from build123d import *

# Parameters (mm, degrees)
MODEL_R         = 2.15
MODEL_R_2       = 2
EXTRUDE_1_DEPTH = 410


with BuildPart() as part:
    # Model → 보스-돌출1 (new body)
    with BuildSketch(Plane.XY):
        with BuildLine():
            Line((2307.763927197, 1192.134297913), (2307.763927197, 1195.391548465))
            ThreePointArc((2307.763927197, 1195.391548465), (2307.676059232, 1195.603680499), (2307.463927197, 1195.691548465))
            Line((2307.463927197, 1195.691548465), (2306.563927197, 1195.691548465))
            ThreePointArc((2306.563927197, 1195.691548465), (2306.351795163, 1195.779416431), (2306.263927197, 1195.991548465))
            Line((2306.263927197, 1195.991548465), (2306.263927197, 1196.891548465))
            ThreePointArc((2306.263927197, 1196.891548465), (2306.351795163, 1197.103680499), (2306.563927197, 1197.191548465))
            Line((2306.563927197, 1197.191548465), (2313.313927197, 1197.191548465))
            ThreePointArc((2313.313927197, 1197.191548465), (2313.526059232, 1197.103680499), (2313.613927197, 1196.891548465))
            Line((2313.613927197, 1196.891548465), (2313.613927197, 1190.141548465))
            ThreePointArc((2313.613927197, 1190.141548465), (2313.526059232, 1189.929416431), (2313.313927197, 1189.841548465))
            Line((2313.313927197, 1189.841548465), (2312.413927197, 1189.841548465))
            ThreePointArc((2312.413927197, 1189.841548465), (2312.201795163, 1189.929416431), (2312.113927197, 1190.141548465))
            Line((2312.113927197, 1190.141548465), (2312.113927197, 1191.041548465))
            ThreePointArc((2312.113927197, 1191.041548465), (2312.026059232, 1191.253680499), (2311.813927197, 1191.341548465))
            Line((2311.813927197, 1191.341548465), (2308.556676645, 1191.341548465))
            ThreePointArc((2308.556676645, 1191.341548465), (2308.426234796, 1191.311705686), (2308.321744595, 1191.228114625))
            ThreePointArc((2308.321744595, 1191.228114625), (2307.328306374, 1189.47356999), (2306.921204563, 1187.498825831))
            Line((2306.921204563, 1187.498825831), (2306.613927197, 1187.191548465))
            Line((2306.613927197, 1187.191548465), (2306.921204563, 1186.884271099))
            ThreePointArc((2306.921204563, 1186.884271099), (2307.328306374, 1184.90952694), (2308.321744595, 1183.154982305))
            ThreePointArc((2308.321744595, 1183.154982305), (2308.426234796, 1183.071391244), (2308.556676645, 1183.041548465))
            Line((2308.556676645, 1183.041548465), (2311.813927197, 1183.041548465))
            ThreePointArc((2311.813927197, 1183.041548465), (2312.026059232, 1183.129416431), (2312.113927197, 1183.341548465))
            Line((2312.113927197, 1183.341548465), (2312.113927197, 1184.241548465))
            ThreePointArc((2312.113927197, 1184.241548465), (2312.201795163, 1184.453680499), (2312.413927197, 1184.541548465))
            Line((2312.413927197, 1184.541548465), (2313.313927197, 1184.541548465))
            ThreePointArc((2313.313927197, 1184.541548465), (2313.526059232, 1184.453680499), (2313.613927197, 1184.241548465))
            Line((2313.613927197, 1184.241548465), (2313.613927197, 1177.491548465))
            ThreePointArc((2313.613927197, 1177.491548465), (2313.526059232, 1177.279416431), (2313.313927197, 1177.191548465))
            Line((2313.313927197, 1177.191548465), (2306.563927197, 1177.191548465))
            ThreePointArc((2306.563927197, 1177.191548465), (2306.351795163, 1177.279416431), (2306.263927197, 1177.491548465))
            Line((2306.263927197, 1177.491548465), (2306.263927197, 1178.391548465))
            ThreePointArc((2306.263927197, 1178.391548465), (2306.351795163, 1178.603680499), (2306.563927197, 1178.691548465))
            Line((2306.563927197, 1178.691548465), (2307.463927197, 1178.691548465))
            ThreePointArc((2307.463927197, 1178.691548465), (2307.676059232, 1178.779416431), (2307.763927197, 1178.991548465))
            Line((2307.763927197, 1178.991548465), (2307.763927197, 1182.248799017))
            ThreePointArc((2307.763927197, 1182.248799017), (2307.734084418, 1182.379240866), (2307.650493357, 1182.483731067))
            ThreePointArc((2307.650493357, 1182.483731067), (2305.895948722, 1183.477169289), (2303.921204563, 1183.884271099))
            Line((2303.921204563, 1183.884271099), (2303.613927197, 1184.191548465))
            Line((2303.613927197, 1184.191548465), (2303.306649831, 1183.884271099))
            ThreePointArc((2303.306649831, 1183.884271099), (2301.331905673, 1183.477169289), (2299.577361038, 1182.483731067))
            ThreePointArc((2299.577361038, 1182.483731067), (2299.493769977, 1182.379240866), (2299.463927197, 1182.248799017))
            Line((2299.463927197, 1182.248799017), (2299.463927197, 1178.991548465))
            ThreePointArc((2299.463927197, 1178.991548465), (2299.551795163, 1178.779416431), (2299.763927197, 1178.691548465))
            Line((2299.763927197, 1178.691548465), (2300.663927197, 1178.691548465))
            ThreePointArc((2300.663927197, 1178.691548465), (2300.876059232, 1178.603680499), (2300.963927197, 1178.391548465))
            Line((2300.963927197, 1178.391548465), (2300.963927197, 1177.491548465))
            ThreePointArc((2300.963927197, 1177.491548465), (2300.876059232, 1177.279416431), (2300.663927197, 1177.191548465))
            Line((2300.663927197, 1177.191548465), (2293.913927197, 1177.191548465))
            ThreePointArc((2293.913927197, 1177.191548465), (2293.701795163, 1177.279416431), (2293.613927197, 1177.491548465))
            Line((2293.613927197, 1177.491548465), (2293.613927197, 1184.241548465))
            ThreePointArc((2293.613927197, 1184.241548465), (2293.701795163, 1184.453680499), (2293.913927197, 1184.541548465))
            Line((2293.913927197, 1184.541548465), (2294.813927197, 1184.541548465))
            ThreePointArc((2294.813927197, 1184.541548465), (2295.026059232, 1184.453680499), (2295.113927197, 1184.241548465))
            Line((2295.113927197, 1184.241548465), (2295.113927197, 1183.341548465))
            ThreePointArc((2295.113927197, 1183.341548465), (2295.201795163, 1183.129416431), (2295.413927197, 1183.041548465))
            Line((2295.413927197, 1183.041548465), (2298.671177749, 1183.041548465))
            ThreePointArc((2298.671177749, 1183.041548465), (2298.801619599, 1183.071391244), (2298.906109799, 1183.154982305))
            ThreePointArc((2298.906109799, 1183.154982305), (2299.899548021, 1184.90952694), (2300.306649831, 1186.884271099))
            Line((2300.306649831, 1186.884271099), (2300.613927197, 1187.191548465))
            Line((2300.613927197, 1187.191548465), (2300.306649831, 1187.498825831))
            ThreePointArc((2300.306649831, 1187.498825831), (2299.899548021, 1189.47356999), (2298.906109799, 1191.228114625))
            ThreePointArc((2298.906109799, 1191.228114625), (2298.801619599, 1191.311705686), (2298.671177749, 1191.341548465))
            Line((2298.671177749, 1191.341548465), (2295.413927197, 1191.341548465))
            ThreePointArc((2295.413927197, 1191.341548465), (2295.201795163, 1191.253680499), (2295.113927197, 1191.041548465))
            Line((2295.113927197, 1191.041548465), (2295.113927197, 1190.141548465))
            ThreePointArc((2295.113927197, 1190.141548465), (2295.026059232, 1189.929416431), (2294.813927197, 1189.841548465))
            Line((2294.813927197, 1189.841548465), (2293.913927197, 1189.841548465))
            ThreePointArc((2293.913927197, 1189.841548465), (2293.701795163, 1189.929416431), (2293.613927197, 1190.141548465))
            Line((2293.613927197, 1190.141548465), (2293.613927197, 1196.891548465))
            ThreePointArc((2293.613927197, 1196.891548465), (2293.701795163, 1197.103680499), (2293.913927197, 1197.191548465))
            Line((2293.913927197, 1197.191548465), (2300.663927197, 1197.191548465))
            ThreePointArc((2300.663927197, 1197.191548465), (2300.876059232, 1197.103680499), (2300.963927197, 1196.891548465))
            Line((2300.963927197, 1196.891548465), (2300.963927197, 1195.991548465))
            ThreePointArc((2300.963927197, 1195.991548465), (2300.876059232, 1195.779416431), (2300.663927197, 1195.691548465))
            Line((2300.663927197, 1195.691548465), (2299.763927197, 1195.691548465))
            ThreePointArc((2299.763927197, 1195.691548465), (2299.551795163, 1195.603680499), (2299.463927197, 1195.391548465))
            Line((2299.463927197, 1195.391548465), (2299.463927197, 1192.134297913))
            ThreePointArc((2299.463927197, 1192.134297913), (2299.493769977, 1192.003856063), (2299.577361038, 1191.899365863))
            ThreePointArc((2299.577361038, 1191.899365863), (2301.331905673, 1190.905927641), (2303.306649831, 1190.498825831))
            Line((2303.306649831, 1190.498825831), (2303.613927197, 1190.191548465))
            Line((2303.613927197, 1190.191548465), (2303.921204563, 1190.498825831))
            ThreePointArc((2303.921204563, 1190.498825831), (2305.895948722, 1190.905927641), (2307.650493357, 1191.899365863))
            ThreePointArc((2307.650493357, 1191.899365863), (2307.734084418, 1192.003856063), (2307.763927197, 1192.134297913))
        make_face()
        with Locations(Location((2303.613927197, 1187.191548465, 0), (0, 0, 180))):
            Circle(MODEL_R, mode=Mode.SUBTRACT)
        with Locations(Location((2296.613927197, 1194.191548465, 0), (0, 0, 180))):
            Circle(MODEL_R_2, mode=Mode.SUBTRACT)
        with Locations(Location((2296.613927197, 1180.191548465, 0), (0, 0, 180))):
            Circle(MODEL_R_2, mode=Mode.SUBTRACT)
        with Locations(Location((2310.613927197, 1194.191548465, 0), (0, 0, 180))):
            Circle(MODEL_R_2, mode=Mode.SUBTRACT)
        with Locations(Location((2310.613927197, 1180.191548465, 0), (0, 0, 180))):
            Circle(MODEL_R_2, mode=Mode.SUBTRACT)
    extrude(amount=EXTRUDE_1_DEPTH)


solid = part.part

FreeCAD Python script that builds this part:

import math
import FreeCAD as App
import Part
import Sketcher

doc = App.newDocument("Part")
body = doc.addObject("PartDesign::Body", "Body")

sketch1 = body.newObject("Sketcher::SketchObject", "Sketch")
sketch1.AttachmentSupport = (doc.getObject("XY_Plane"), [""])
sketch1.MapMode = "FlatFace"
sketch1.addGeometry(Part.LineSegment(App.Vector(2307.763927, 1195.391548, 0), App.Vector(2307.763927, 1192.134298, 0)), False)
sketch1.addGeometry(Part.ArcOfCircle(Part.Circle(App.Vector(2307.463927, 1192.134298, 0), App.Vector(0, 0, 1), 0.3), math.radians(-51.545921), math.radians(0)), False)
sketch1.addGeometry(Part.ArcOfCircle(Part.Circle(App.Vector(2303.613927, 1196.982382, 0), App.Vector(0, 0, 1), 6.490833), math.radians(-87.286592), math.radians(-51.545921)), False)
sketch1.addGeometry(Part.LineSegment(App.Vector(2303.921205, 1190.498826, 0), App.Vector(2303.613927, 1190.191548, 0)), False)
sketch1.addGeometry(Part.LineSegment(App.Vector(2303.613927, 1190.191548, 0), App.Vector(2303.30665, 1190.498826, 0)), False)
sketch1.addGeometry(Part.ArcOfCircle(Part.Circle(App.Vector(2303.613927, 1196.982382, 0), App.Vector(0, 0, 1), 6.490833), math.radians(-128.454079), math.radians(-92.713408)), False)
sketch1.addGeometry(Part.ArcOfCircle(Part.Circle(App.Vector(2299.763927, 1192.134298, 0), App.Vector(0, 0, 1), 0.3), math.radians(-180), math.radians(-128.454079)), False)
sketch1.addGeometry(Part.LineSegment(App.Vector(2299.463927, 1192.134298, 0), App.Vector(2299.463927, 1195.391548, 0)), False)
sketch1.addGeometry(Part.ArcOfCircle(Part.Circle(App.Vector(2299.763927, 1195.391548, 0), App.Vector(0, 0, 1), 0.3), math.radians(90), math.radians(180)), False)
sketch1.addGeometry(Part.LineSegment(App.Vector(2299.763927, 1195.691548, 0), App.Vector(2300.663927, 1195.691548, 0)), False)
sketch1.addGeometry(Part.ArcOfCircle(Part.Circle(App.Vector(2300.663927, 1195.991548, 0), App.Vector(0, 0, 1), 0.3), math.radians(-90), math.radians(0)), False)
sketch1.addGeometry(Part.LineSegment(App.Vector(2300.963927, 1195.991548, 0), App.Vector(2300.963927, 1196.891548, 0)), False)
sketch1.addGeometry(Part.ArcOfCircle(Part.Circle(App.Vector(2300.663927, 1196.891548, 0), App.Vector(0, 0, 1), 0.3), math.radians(0), math.radians(90)), False)
sketch1.addGeometry(Part.LineSegment(App.Vector(2300.663927, 1197.191548, 0), App.Vector(2293.913927, 1197.191548, 0)), False)
sketch1.addGeometry(Part.ArcOfCircle(Part.Circle(App.Vector(2293.913927, 1196.891548, 0), App.Vector(0, 0, 1), 0.3), math.radians(90), math.radians(180)), False)
sketch1.addGeometry(Part.LineSegment(App.Vector(2293.613927, 1196.891548, 0), App.Vector(2293.613927, 1190.141548, 0)), False)
sketch1.addGeometry(Part.ArcOfCircle(Part.Circle(App.Vector(2293.913927, 1190.141548, 0), App.Vector(0, 0, 1), 0.3), math.radians(-180), math.radians(-90)), False)
sketch1.addGeometry(Part.LineSegment(App.Vector(2293.913927, 1189.841548, 0), App.Vector(2294.813927, 1189.841548, 0)), False)
sketch1.addGeometry(Part.ArcOfCircle(Part.Circle(App.Vector(2294.813927, 1190.141548, 0), App.Vector(0, 0, 1), 0.3), math.radians(-90), math.radians(0)), False)
sketch1.addGeometry(Part.LineSegment(App.Vector(2295.113927, 1190.141548, 0), App.Vector(2295.113927, 1191.041548, 0)), False)
sketch1.addGeometry(Part.ArcOfCircle(Part.Circle(App.Vector(2295.413927, 1191.041548, 0), App.Vector(0, 0, 1), 0.3), math.radians(90), math.radians(180)), False)
sketch1.addGeometry(Part.LineSegment(App.Vector(2295.413927, 1191.341548, 0), App.Vector(2298.671178, 1191.341548, 0)), False)
sketch1.addGeometry(Part.ArcOfCircle(Part.Circle(App.Vector(2298.671178, 1191.041548, 0), App.Vector(0, 0, 1), 0.3), math.radians(38.454079), math.radians(90)), False)
sketch1.addGeometry(Part.ArcOfCircle(Part.Circle(App.Vector(2293.823094, 1187.191548, 0), App.Vector(0, 0, 1), 6.490833), math.radians(2.713408), math.radians(38.454079)), False)
sketch1.addGeometry(Part.LineSegment(App.Vector(2300.30665, 1187.498826, 0), App.Vector(2300.613927, 1187.191548, 0)), False)
sketch1.addGeometry(Part.LineSegment(App.Vector(2300.613927, 1187.191548, 0), App.Vector(2300.30665, 1186.884271, 0)), False)
sketch1.addGeometry(Part.ArcOfCircle(Part.Circle(App.Vector(2293.823094, 1187.191548, 0), App.Vector(0, 0, 1), 6.490833), math.radians(-38.454079), math.radians(-2.713408)), False)
sketch1.addGeometry(Part.ArcOfCircle(Part.Circle(App.Vector(2298.671178, 1183.341548, 0), App.Vector(0, 0, 1), 0.3), math.radians(-90), math.radians(-38.454079)), False)
sketch1.addGeometry(Part.LineSegment(App.Vector(2298.671178, 1183.041548, 0), App.Vector(2295.413927, 1183.041548, 0)), False)
sketch1.addGeometry(Part.ArcOfCircle(Part.Circle(App.Vector(2295.413927, 1183.341548, 0), App.Vector(0, 0, 1), 0.3), math.radians(-180), math.radians(-90)), False)
sketch1.addGeometry(Part.LineSegment(App.Vector(2295.113927, 1183.341548, 0), App.Vector(2295.113927, 1184.241548, 0)), False)
sketch1.addGeometry(Part.ArcOfCircle(Part.Circle(App.Vector(2294.813927, 1184.241548, 0), App.Vector(0, 0, 1), 0.3), math.radians(0), math.radians(90)), False)
sketch1.addGeometry(Part.LineSegment(App.Vector(2294.813927, 1184.541548, 0), App.Vector(2293.913927, 1184.541548, 0)), False)
sketch1.addGeometry(Part.ArcOfCircle(Part.Circle(App.Vector(2293.913927, 1184.241548, 0), App.Vector(0, 0, 1), 0.3), math.radians(90), math.radians(180)), False)
sketch1.addGeometry(Part.LineSegment(App.Vector(2293.613927, 1184.241548, 0), App.Vector(2293.613927, 1177.491548, 0)), False)
sketch1.addGeometry(Part.ArcOfCircle(Part.Circle(App.Vector(2293.913927, 1177.491548, 0), App.Vector(0, 0, 1), 0.3), math.radians(-180), math.radians(-90)), False)
sketch1.addGeometry(Part.LineSegment(App.Vector(2293.913927, 1177.191548, 0), App.Vector(2300.663927, 1177.191548, 0)), False)
sketch1.addGeometry(Part.ArcOfCircle(Part.Circle(App.Vector(2300.663927, 1177.491548, 0), App.Vector(0, 0, 1), 0.3), math.radians(-90), math.radians(0)), False)
sketch1.addGeometry(Part.LineSegment(App.Vector(2300.963927, 1177.491548, 0), App.Vector(2300.963927, 1178.391548, 0)), False)
sketch1.addGeometry(Part.ArcOfCircle(Part.Circle(App.Vector(2300.663927, 1178.391548, 0), App.Vector(0, 0, 1), 0.3), math.radians(0), math.radians(90)), False)
sketch1.addGeometry(Part.LineSegment(App.Vector(2300.663927, 1178.691548, 0), App.Vector(2299.763927, 1178.691548, 0)), False)
sketch1.addGeometry(Part.ArcOfCircle(Part.Circle(App.Vector(2299.763927, 1178.991548, 0), App.Vector(0, 0, 1), 0.3), math.radians(-180), math.radians(-90)), False)
sketch1.addGeometry(Part.LineSegment(App.Vector(2299.463927, 1178.991548, 0), App.Vector(2299.463927, 1182.248799, 0)), False)
sketch1.addGeometry(Part.ArcOfCircle(Part.Circle(App.Vector(2299.763927, 1182.248799, 0), App.Vector(0, 0, 1), 0.3), math.radians(128.45408), math.radians(179.999999)), False)
sketch1.addGeometry(Part.ArcOfCircle(Part.Circle(App.Vector(2303.613927, 1177.400715, 0), App.Vector(0, 0, 1), 6.490833), math.radians(92.713408), math.radians(128.454079)), False)
sketch1.addGeometry(Part.LineSegment(App.Vector(2303.30665, 1183.884271, 0), App.Vector(2303.613927, 1184.191548, 0)), False)
sketch1.addGeometry(Part.LineSegment(App.Vector(2303.613927, 1184.191548, 0), App.Vector(2303.921205, 1183.884271, 0)), False)
sketch1.addGeometry(Part.ArcOfCircle(Part.Circle(App.Vector(2303.613927, 1177.400715, 0), App.Vector(0, 0, 1), 6.490833), math.radians(51.545921), math.radians(87.286592)), False)
sketch1.addGeometry(Part.ArcOfCircle(Part.Circle(App.Vector(2307.463927, 1182.248799, 0), App.Vector(0, 0, 1), 0.3), math.radians(0), math.radians(51.545921)), False)
sketch1.addGeometry(Part.LineSegment(App.Vector(2307.763927, 1182.248799, 0), App.Vector(2307.763927, 1178.991548, 0)), False)
sketch1.addGeometry(Part.ArcOfCircle(Part.Circle(App.Vector(2307.463927, 1178.991548, 0), App.Vector(0, 0, 1), 0.3), math.radians(-90), math.radians(0)), False)
sketch1.addGeometry(Part.LineSegment(App.Vector(2307.463927, 1178.691548, 0), App.Vector(2306.563927, 1178.691548, 0)), False)
sketch1.addGeometry(Part.ArcOfCircle(Part.Circle(App.Vector(2306.563927, 1178.391548, 0), App.Vector(0, 0, 1), 0.3), math.radians(90), math.radians(180)), False)
sketch1.addGeometry(Part.LineSegment(App.Vector(2306.263927, 1178.391548, 0), App.Vector(2306.263927, 1177.491548, 0)), False)
sketch1.addGeometry(Part.ArcOfCircle(Part.Circle(App.Vector(2306.563927, 1177.491548, 0), App.Vector(0, 0, 1), 0.3), math.radians(-180), math.radians(-90)), False)
sketch1.addGeometry(Part.LineSegment(App.Vector(2306.563927, 1177.191548, 0), App.Vector(2313.313927, 1177.191548, 0)), False)
sketch1.addGeometry(Part.ArcOfCircle(Part.Circle(App.Vector(2313.313927, 1177.491548, 0), App.Vector(0, 0, 1), 0.3), math.radians(-90), math.radians(0)), False)
sketch1.addGeometry(Part.LineSegment(App.Vector(2313.613927, 1177.491548, 0), App.Vector(2313.613927, 1184.241548, 0)), False)
sketch1.addGeometry(Part.ArcOfCircle(Part.Circle(App.Vector(2313.313927, 1184.241548, 0), App.Vector(0, 0, 1), 0.3), math.radians(0), math.radians(90)), False)
sketch1.addGeometry(Part.LineSegment(App.Vector(2313.313927, 1184.541548, 0), App.Vector(2312.413927, 1184.541548, 0)), False)
sketch1.addGeometry(Part.ArcOfCircle(Part.Circle(App.Vector(2312.413927, 1184.241548, 0), App.Vector(0, 0, 1), 0.3), math.radians(90), math.radians(180)), False)
sketch1.addGeometry(Part.LineSegment(App.Vector(2312.113927, 1184.241548, 0), App.Vector(2312.113927, 1183.341548, 0)), False)
sketch1.addGeometry(Part.ArcOfCircle(Part.Circle(App.Vector(2311.813927, 1183.341548, 0), App.Vector(0, 0, 1), 0.3), math.radians(-90), math.radians(0)), False)
sketch1.addGeometry(Part.LineSegment(App.Vector(2311.813927, 1183.041548, 0), App.Vector(2308.556677, 1183.041548, 0)), False)
sketch1.addGeometry(Part.ArcOfCircle(Part.Circle(App.Vector(2308.556677, 1183.341548, 0), App.Vector(0, 0, 1), 0.3), math.radians(-141.545921), math.radians(-90)), False)
sketch1.addGeometry(Part.ArcOfCircle(Part.Circle(App.Vector(2313.404761, 1187.191548, 0), App.Vector(0, 0, 1), 6.490833), math.radians(-177.286592), math.radians(-141.545921)), False)
sketch1.addGeometry(Part.LineSegment(App.Vector(2306.921205, 1186.884271, 0), App.Vector(2306.613927, 1187.191548, 0)), False)
sketch1.addGeometry(Part.LineSegment(App.Vector(2306.613927, 1187.191548, 0), App.Vector(2306.921205, 1187.498826, 0)), False)
sketch1.addGeometry(Part.ArcOfCircle(Part.Circle(App.Vector(2313.404761, 1187.191548, 0), App.Vector(0, 0, 1), 6.490833), math.radians(141.545921), math.radians(177.286592)), False)
sketch1.addGeometry(Part.ArcOfCircle(Part.Circle(App.Vector(2308.556677, 1191.041548, 0), App.Vector(0, 0, 1), 0.3), math.radians(90), math.radians(141.545921)), False)
sketch1.addGeometry(Part.LineSegment(App.Vector(2308.556677, 1191.341548, 0), App.Vector(2311.813927, 1191.341548, 0)), False)
sketch1.addGeometry(Part.ArcOfCircle(Part.Circle(App.Vector(2311.813927, 1191.041548, 0), App.Vector(0, 0, 1), 0.3), math.radians(0), math.radians(90)), False)
sketch1.addGeometry(Part.LineSegment(App.Vector(2312.113927, 1191.041548, 0), App.Vector(2312.113927, 1190.141548, 0)), False)
sketch1.addGeometry(Part.ArcOfCircle(Part.Circle(App.Vector(2312.413927, 1190.141548, 0), App.Vector(0, 0, 1), 0.3), math.radians(-180), math.radians(-90)), False)
sketch1.addGeometry(Part.LineSegment(App.Vector(2312.413927, 1189.841548, 0), App.Vector(2313.313927, 1189.841548, 0)), False)
sketch1.addGeometry(Part.ArcOfCircle(Part.Circle(App.Vector(2313.313927, 1190.141548, 0), App.Vector(0, 0, 1), 0.3), math.radians(-90), math.radians(0)), False)
sketch1.addGeometry(Part.LineSegment(App.Vector(2313.613927, 1190.141548, 0), App.Vector(2313.613927, 1196.891548, 0)), False)
sketch1.addGeometry(Part.ArcOfCircle(Part.Circle(App.Vector(2313.313927, 1196.891548, 0), App.Vector(0, 0, 1), 0.3), math.radians(0), math.radians(90)), False)
sketch1.addGeometry(Part.LineSegment(App.Vector(2313.313927, 1197.191548, 0), App.Vector(2306.563927, 1197.191548, 0)), False)
sketch1.addGeometry(Part.ArcOfCircle(Part.Circle(App.Vector(2306.563927, 1196.891548, 0), App.Vector(0, 0, 1), 0.3), math.radians(90), math.radians(180)), False)
sketch1.addGeometry(Part.LineSegment(App.Vector(2306.263927, 1196.891548, 0), App.Vector(2306.263927, 1195.991548, 0)), False)
sketch1.addGeometry(Part.ArcOfCircle(Part.Circle(App.Vector(2306.563927, 1195.991548, 0), App.Vector(0, 0, 1), 0.3), math.radians(-180), math.radians(-90)), False)
sketch1.addGeometry(Part.LineSegment(App.Vector(2306.563927, 1195.691548, 0), App.Vector(2307.463927, 1195.691548, 0)), False)
sketch1.addGeometry(Part.ArcOfCircle(Part.Circle(App.Vector(2307.463927, 1195.391548, 0), App.Vector(0, 0, 1), 0.3), math.radians(0), math.radians(90)), False)
sketch1.addGeometry(Part.Circle(App.Vector(2310.613927, 1180.191548, 0), App.Vector(0, 0, 1), 2), False)
sketch1.addGeometry(Part.Circle(App.Vector(2296.613927, 1180.191548, 0), App.Vector(0, 0, 1), 2), False)
sketch1.addGeometry(Part.Circle(App.Vector(2310.613927, 1194.191548, 0), App.Vector(0, 0, 1), 2), False)
sketch1.addGeometry(Part.Circle(App.Vector(2303.613927, 1187.191548, 0), App.Vector(0, 0, 1), 2.15), False)
sketch1.addGeometry(Part.Circle(App.Vector(2296.613927, 1194.191548, 0), App.Vector(0, 0, 1), 2), False)
sketch1.addConstraint(Sketcher.Constraint("Tangent", 0, 2, 1, 2))
sketch1.addConstraint(Sketcher.Constraint("Tangent", 1, 1, 2, 2))
sketch1.addConstraint(Sketcher.Constraint("Coincident", 2, 1, 3, 1))
sketch1.addConstraint(Sketcher.Constraint("Coincident", 3, 2, 4, 1))
sketch1.addConstraint(Sketcher.Constraint("Coincident", 4, 2, 5, 2))
sketch1.addConstraint(Sketcher.Constraint("Tangent", 5, 1, 6, 2))
sketch1.addConstraint(Sketcher.Constraint("Tangent", 6, 1, 7, 1))
sketch1.addConstraint(Sketcher.Constraint("Tangent", 7, 2, 8, 2))
sketch1.addConstraint(Sketcher.Constraint("Tangent", 8, 1, 9, 1))
sketch1.addConstraint(Sketcher.Constraint("Tangent", 9, 2, 10, 1))
sketch1.addConstraint(Sketcher.Constraint("Tangent", 10, 2, 11, 1))
sketch1.addConstraint(Sketcher.Constraint("Tangent", 11, 2, 12, 1))
sketch1.addConstraint(Sketcher.Constraint("Tangent", 12, 2, 13, 1))
sketch1.addConstraint(Sketcher.Constraint("Tangent", 13, 2, 14, 1))
sketch1.addConstraint(Sketcher.Constraint("Tangent", 14, 2, 15, 1))
sketch1.addConstraint(Sketcher.Constraint("Tangent", 15, 2, 16, 1))
sketch1.addConstraint(Sketcher.Constraint("Tangent", 16, 2, 17, 1))
sketch1.addConstraint(Sketcher.Constraint("Tangent", 17, 2, 18, 1))
sketch1.addConstraint(Sketcher.Constraint("Tangent", 18, 2, 19, 1))
sketch1.addConstraint(Sketcher.Constraint("Tangent", 19, 2, 20, 2))
sketch1.addConstraint(Sketcher.Constraint("Tangent", 20, 1, 21, 1))
sketch1.addConstraint(Sketcher.Constraint("Tangent", 21, 2, 22, 2))
sketch1.addConstraint(Sketcher.Constraint("Tangent", 22, 1, 23, 2))
sketch1.addConstraint(Sketcher.Constraint("Coincident", 23, 1, 24, 1))
sketch1.addConstraint(Sketcher.Constraint("Coincident", 24, 2, 25, 1))
sketch1.addConstraint(Sketcher.Constraint("Coincident", 25, 2, 26, 2))
sketch1.addConstraint(Sketcher.Constraint("Tangent", 26, 1, 27, 2))
sketch1.addConstraint(Sketcher.Constraint("Tangent", 27, 1, 28, 1))
sketch1.addConstraint(Sketcher.Constraint("Tangent", 28, 2, 29, 2))
sketch1.addConstraint(Sketcher.Constraint("Tangent", 29, 1, 30, 1))
sketch1.addConstraint(Sketcher.Constraint("Tangent", 30, 2, 31, 1))
sketch1.addConstraint(Sketcher.Constraint("Tangent", 31, 2, 32, 1))
sketch1.addConstraint(Sketcher.Constraint("Tangent", 32, 2, 33, 1))
sketch1.addConstraint(Sketcher.Constraint("Tangent", 33, 2, 34, 1))
sketch1.addConstraint(Sketcher.Constraint("Tangent", 34, 2, 35, 1))
sketch1.addConstraint(Sketcher.Constraint("Tangent", 35, 2, 36, 1))
sketch1.addConstraint(Sketcher.Constraint("Tangent", 36, 2, 37, 1))
sketch1.addConstraint(Sketcher.Constraint("Tangent", 37, 2, 38, 1))
sketch1.addConstraint(Sketcher.Constraint("Tangent", 38, 2, 39, 1))
sketch1.addConstraint(Sketcher.Constraint("Tangent", 39, 2, 40, 1))
sketch1.addConstraint(Sketcher.Constraint("Tangent", 40, 2, 41, 2))
sketch1.addConstraint(Sketcher.Constraint("Tangent", 41, 1, 42, 1))
sketch1.addConstraint(Sketcher.Constraint("Tangent", 42, 2, 43, 2))
sketch1.addConstraint(Sketcher.Constraint("Tangent", 43, 1, 44, 2))
sketch1.addConstraint(Sketcher.Constraint("Coincident", 44, 1, 45, 1))
sketch1.addConstraint(Sketcher.Constraint("Coincident", 45, 2, 46, 1))
sketch1.addConstraint(Sketcher.Constraint("Coincident", 46, 2, 47, 2))
sketch1.addConstraint(Sketcher.Constraint("Tangent", 47, 1, 48, 2))
sketch1.addConstraint(Sketcher.Constraint("Tangent", 48, 1, 49, 1))
sketch1.addConstraint(Sketcher.Constraint("Tangent", 49, 2, 50, 2))
sketch1.addConstraint(Sketcher.Constraint("Tangent", 50, 1, 51, 1))
sketch1.addConstraint(Sketcher.Constraint("Tangent", 51, 2, 52, 1))
sketch1.addConstraint(Sketcher.Constraint("Tangent", 52, 2, 53, 1))
sketch1.addConstraint(Sketcher.Constraint("Tangent", 53, 2, 54, 1))
sketch1.addConstraint(Sketcher.Constraint("Tangent", 54, 2, 55, 1))
sketch1.addConstraint(Sketcher.Constraint("Tangent", 55, 2, 56, 1))
sketch1.addConstraint(Sketcher.Constraint("Tangent", 56, 2, 57, 1))
sketch1.addConstraint(Sketcher.Constraint("Tangent", 57, 2, 58, 1))
sketch1.addConstraint(Sketcher.Constraint("Tangent", 58, 2, 59, 1))
sketch1.addConstraint(Sketcher.Constraint("Tangent", 59, 2, 60, 1))
sketch1.addConstraint(Sketcher.Constraint("Tangent", 60, 2, 61, 1))
sketch1.addConstraint(Sketcher.Constraint("Tangent", 61, 2, 62, 2))
sketch1.addConstraint(Sketcher.Constraint("Tangent", 62, 1, 63, 1))
sketch1.addConstraint(Sketcher.Constraint("Tangent", 63, 2, 64, 2))
sketch1.addConstraint(Sketcher.Constraint("Tangent", 64, 1, 65, 2))
sketch1.addConstraint(Sketcher.Constraint("Coincident", 65, 1, 66, 1))
sketch1.addConstraint(Sketcher.Constraint("Coincident", 66, 2, 67, 1))
sketch1.addConstraint(Sketcher.Constraint("Coincident", 67, 2, 68, 2))
sketch1.addConstraint(Sketcher.Constraint("Tangent", 68, 1, 69, 2))
sketch1.addConstraint(Sketcher.Constraint("Tangent", 69, 1, 70, 1))
sketch1.addConstraint(Sketcher.Constraint("Tangent", 70, 2, 71, 2))
sketch1.addConstraint(Sketcher.Constraint("Tangent", 71, 1, 72, 1))
sketch1.addConstraint(Sketcher.Constraint("Tangent", 72, 2, 73, 1))
sketch1.addConstraint(Sketcher.Constraint("Tangent", 73, 2, 74, 1))
sketch1.addConstraint(Sketcher.Constraint("Tangent", 74, 2, 75, 1))
sketch1.addConstraint(Sketcher.Constraint("Tangent", 75, 2, 76, 1))
sketch1.addConstraint(Sketcher.Constraint("Tangent", 76, 2, 77, 1))
sketch1.addConstraint(Sketcher.Constraint("Tangent", 77, 2, 78, 1))
sketch1.addConstraint(Sketcher.Constraint("Tangent", 78, 2, 79, 1))
sketch1.addConstraint(Sketcher.Constraint("Tangent", 79, 2, 80, 1))
sketch1.addConstraint(Sketcher.Constraint("Tangent", 80, 2, 81, 1))
sketch1.addConstraint(Sketcher.Constraint("Tangent", 81, 2, 82, 1))
sketch1.addConstraint(Sketcher.Constraint("Tangent", 82, 2, 83, 2))
sketch1.addConstraint(Sketcher.Constraint("Tangent", 83, 1, 0, 1))
sketch1.addConstraint(Sketcher.Constraint("Vertical", 0))
sketch1.addConstraint(Sketcher.Constraint("Vertical", 7))
sketch1.addConstraint(Sketcher.Constraint("Horizontal", 9))
sketch1.addConstraint(Sketcher.Constraint("Vertical", 11))
sketch1.addConstraint(Sketcher.Constraint("Horizontal", 13))
sketch1.addConstraint(Sketcher.Constraint("Vertical", 15))
sketch1.addConstraint(Sketcher.Constraint("Horizontal", 17))
sketch1.addConstraint(Sketcher.Constraint("Vertical", 19))
sketch1.addConstraint(Sketcher.Constraint("Horizontal", 21))
sketch1.addConstraint(Sketcher.Constraint("Horizontal", 28))
sketch1.addConstraint(Sketcher.Constraint("Vertical", 30))
sketch1.addConstraint(Sketcher.Constraint("Horizontal", 32))
sketch1.addConstraint(Sketcher.Constraint("Vertical", 34))
sketch1.addConstraint(Sketcher.Constraint("Horizontal", 36))
sketch1.addConstraint(Sketcher.Constraint("Vertical", 38))
sketch1.addConstraint(Sketcher.Constraint("Horizontal", 40))
sketch1.addConstraint(Sketcher.Constraint("Vertical", 42))
sketch1.addConstraint(Sketcher.Constraint("Vertical", 49))
sketch1.addConstraint(Sketcher.Constraint("Horizontal", 51))
sketch1.addConstraint(Sketcher.Constraint("Vertical", 53))
sketch1.addConstraint(Sketcher.Constraint("Horizontal", 55))
sketch1.addConstraint(Sketcher.Constraint("Vertical", 57))
sketch1.addConstraint(Sketcher.Constraint("Horizontal", 59))
sketch1.addConstraint(Sketcher.Constraint("Vertical", 61))
sketch1.addConstraint(Sketcher.Constraint("Horizontal", 63))
sketch1.addConstraint(Sketcher.Constraint("Horizontal", 70))
sketch1.addConstraint(Sketcher.Constraint("Vertical", 72))
sketch1.addConstraint(Sketcher.Constraint("Horizontal", 74))
sketch1.addConstraint(Sketcher.Constraint("Vertical", 76))
sketch1.addConstraint(Sketcher.Constraint("Horizontal", 78))
sketch1.addConstraint(Sketcher.Constraint("Vertical", 80))
sketch1.addConstraint(Sketcher.Constraint("Horizontal", 82))
sketch1.addConstraint(Sketcher.Constraint("Coincident", 5, 3, 2, 3))
sketch1.addConstraint(Sketcher.Constraint("Coincident", 26, 3, 23, 3))
sketch1.addConstraint(Sketcher.Constraint("Coincident", 47, 3, 44, 3))
sketch1.addConstraint(Sketcher.Constraint("Coincident", 68, 3, 65, 3))
sketch1.addConstraint(Sketcher.Constraint("Equal", 2, 5))
sketch1.addConstraint(Sketcher.Constraint("Equal", 1, 6))
sketch1.addConstraint(Sketcher.Constraint("Equal", 6, 8))
sketch1.addConstraint(Sketcher.Constraint("Equal", 8, 10))
sketch1.addConstraint(Sketcher.Constraint("Equal", 10, 12))
sketch1.addConstraint(Sketcher.Constraint("Equal", 12, 14))
sketch1.addConstraint(Sketcher.Constraint("Equal", 14, 16))
sketch1.addConstraint(Sketcher.Constraint("Equal", 16, 18))
sketch1.addConstraint(Sketcher.Constraint("Equal", 18, 20))
sketch1.addConstraint(Sketcher.Constraint("Equal", 20, 22))
sketch1.addConstraint(Sketcher.Constraint("Equal", 5, 23))
sketch1.addConstraint(Sketcher.Constraint("Equal", 23, 26))
sketch1.addConstraint(Sketcher.Constraint("Equal", 22, 27))
sketch1.addConstraint(Sketcher.Constraint("Equal", 27, 29))
sketch1.addConstraint(Sketcher.Constraint("Equal", 29, 31))
sketch1.addConstraint(Sketcher.Constraint("Equal", 31, 33))
sketch1.addConstraint(Sketcher.Constraint("Equal", 33, 35))
sketch1.addConstraint(Sketcher.Constraint("Equal", 35, 37))
sketch1.addConstraint(Sketcher.Constraint("Equal", 37, 39))
sketch1.addConstraint(Sketcher.Constraint("Equal", 39, 41))
sketch1.addConstraint(Sketcher.Constraint("Equal", 41, 43))
sketch1.addConstraint(Sketcher.Constraint("Equal", 26, 44))
sketch1.addConstraint(Sketcher.Constraint("Equal", 44, 47))
sketch1.addConstraint(Sketcher.Constraint("Equal", 43, 48))
sketch1.addConstraint(Sketcher.Constraint("Equal", 48, 50))
sketch1.addConstraint(Sketcher.Constraint("Equal", 50, 52))
sketch1.addConstraint(Sketcher.Constraint("Equal", 52, 54))
sketch1.addConstraint(Sketcher.Constraint("Equal", 54, 56))
sketch1.addConstraint(Sketcher.Constraint("Equal", 56, 58))
sketch1.addConstraint(Sketcher.Constraint("Equal", 58, 60))
sketch1.addConstraint(Sketcher.Constraint("Equal", 60, 62))
sketch1.addConstraint(Sketcher.Constraint("Equal", 62, 64))
sketch1.addConstraint(Sketcher.Constraint("Equal", 47, 65))
sketch1.addConstraint(Sketcher.Constraint("Equal", 65, 68))
sketch1.addConstraint(Sketcher.Constraint("Equal", 64, 69))
sketch1.addConstraint(Sketcher.Constraint("Equal", 69, 71))
sketch1.addConstraint(Sketcher.Constraint("Equal", 71, 73))
sketch1.addConstraint(Sketcher.Constraint("Equal", 73, 75))
sketch1.addConstraint(Sketcher.Constraint("Equal", 75, 77))
sketch1.addConstraint(Sketcher.Constraint("Equal", 77, 79))
sketch1.addConstraint(Sketcher.Constraint("Equal", 79, 81))
sketch1.addConstraint(Sketcher.Constraint("Equal", 81, 83))
sketch1.addConstraint(Sketcher.Constraint("Equal", 84, 85))
sketch1.addConstraint(Sketcher.Constraint("Equal", 85, 86))
sketch1.addConstraint(Sketcher.Constraint("Equal", 86, 88))
sketch1.addConstraint(Sketcher.Constraint("Perpendicular", 3, 4))
sketch1.addConstraint(Sketcher.Constraint("Parallel", 4, 24))
sketch1.addConstraint(Sketcher.Constraint("Perpendicular", 24, 25))
sketch1.addConstraint(Sketcher.Constraint("Parallel", 25, 45))
sketch1.addConstraint(Sketcher.Constraint("Perpendicular", 45, 46))
sketch1.addConstraint(Sketcher.Constraint("Parallel", 46, 66))
sketch1.addConstraint(Sketcher.Constraint("Perpendicular", 66, 67))
sketch1.addConstraint(Sketcher.Constraint("Horizontal", 1, 3, 6, 3))
sketch1.addConstraint(Sketcher.Constraint("Horizontal", 43, 3, 48, 3))
sketch1.addConstraint(Sketcher.Constraint("Horizontal", 41, 3, 50, 3))
sketch1.addConstraint(Sketcher.Constraint("Horizontal", 37, 3, 54, 3))
sketch1.addConstraint(Sketcher.Constraint("Horizontal", 33, 3, 58, 3))
sketch1.addConstraint(Sketcher.Constraint("Horizontal", 29, 3, 62, 3))
sketch1.addConstraint(Sketcher.Constraint("Horizontal", 26, 3, 65, 3))
sketch1.addConstraint(Sketcher.Constraint("Horizontal", 22, 3, 69, 3))
sketch1.addConstraint(Sketcher.Constraint("Horizontal", 18, 3, 73, 3))
sketch1.addConstraint(Sketcher.Constraint("Horizontal", 14, 3, 77, 3))
sketch1.addConstraint(Sketcher.Constraint("Horizontal", 10, 3, 81, 3))
sketch1.addConstraint(Sketcher.Constraint("Horizontal", 84, 3, 85, 3))
sketch1.addConstraint(Sketcher.Constraint("Horizontal", 68, 3, 87, 3))
sketch1.addConstraint(Sketcher.Constraint("Horizontal", 86, 3, 88, 3))
sketch1.addConstraint(Sketcher.Constraint("Horizontal", 2, 1, 4, 2))
sketch1.addConstraint(Sketcher.Constraint("Horizontal", 87, 3, 24, 2))
sketch1.addConstraint(Sketcher.Constraint("Horizontal", 44, 1, 46, 2))
sketch1.addConstraint(Sketcher.Constraint("Horizontal", 25, 2, 65, 1))
sketch1.addConstraint(Sketcher.Constraint("Horizontal", 24, 2, 66, 2))
sketch1.addConstraint(Sketcher.Constraint("Horizontal", 23, 1, 67, 2))
sketch1.addConstraint(Sketcher.Constraint("Vertical", 22, 3, 27, 3))
sketch1.addConstraint(Sketcher.Constraint("Vertical", 20, 3, 29, 3))
sketch1.addConstraint(Sketcher.Constraint("Vertical", 16, 3, 33, 3))
sketch1.addConstraint(Sketcher.Constraint("Vertical", 12, 3, 37, 3))
sketch1.addConstraint(Sketcher.Constraint("Vertical", 8, 3, 41, 3))
sketch1.addConstraint(Sketcher.Constraint("Vertical", 5, 3, 44, 3))
sketch1.addConstraint(Sketcher.Constraint("Vertical", 62, 3, 71, 3))
sketch1.addConstraint(Sketcher.Constraint("Vertical", 58, 3, 75, 3))
sketch1.addConstraint(Sketcher.Constraint("Vertical", 54, 3, 79, 3))
sketch1.addConstraint(Sketcher.Constraint("Vertical", 84, 3, 86, 3))
sketch1.addConstraint(Sketcher.Constraint("Vertical", 47, 3, 87, 3))
sketch1.addConstraint(Sketcher.Constraint("Vertical", 85, 3, 88, 3))
sketch1.addConstraint(Sketcher.Constraint("Vertical", 4, 2, 44, 1))
sketch1.addConstraint(Sketcher.Constraint("Equal", 9, 17))
sketch1.addConstraint(Sketcher.Constraint("Equal", 40, 51))
sketch1.addConstraint(Sketcher.Constraint("Equal", 36, 55))
sketch1.addConstraint(Sketcher.Constraint("Equal", 51, 59))
sketch1.addConstraint(Sketcher.Constraint("Equal", 28, 63))
sketch1.addConstraint(Sketcher.Constraint("Equal", 70, 0))
sketch1.addConstraint(Sketcher.Constraint("Equal", 82, 11))
sketch1.addConstraint(Sketcher.Constraint("Equal", 78, 15))
sketch1.addConstraint(Sketcher.Constraint("Equal", 11, 19))
sketch1.addConstraint(Sketcher.Constraint("Equal", 19, 30))
sketch1.addConstraint(Sketcher.Constraint("Equal", 15, 34))
sketch1.addConstraint(Sketcher.Constraint("Equal", 30, 38))
sketch1.addConstraint(Sketcher.Constraint("Equal", 7, 42))
sketch1.addConstraint(Sketcher.Constraint("Equal", 4, 24))
sketch1.addConstraint(Sketcher.Constraint("Diameter", 84, 4.0))
sketch1.addConstraint(Sketcher.Constraint("Diameter", 87, 4.3))
sketch1.addConstraint(Sketcher.Constraint("Radius", 1, 0.3))
sketch1.addConstraint(Sketcher.Constraint("DistanceX", 9, 1, 9, 2, 0.9))
sketch1.addConstraint(Sketcher.Constraint("DistanceX", 13, 2, 13, 1, 6.75))
sketch1.addConstraint(Sketcher.Constraint("Radius", 2, 6.490833))
sketch1.addConstraint(Sketcher.Constraint("DistanceX", 21, 1, 21, 2, 3.257251))
sketch1.addConstraint(Sketcher.Constraint("DistanceY", -1, 1, 43, 3, 1182.248799))
sketch1.addConstraint(Sketcher.Constraint("DistanceY", -1, 1, 2, 3, 1196.982382))
sketch1.addConstraint(Sketcher.Constraint("DistanceY", -1, 1, 8, 3, 1195.391548))
sketch1.addConstraint(Sketcher.Constraint("DistanceX", -1, 1, 65, 3, 2313.404761))
sketch1.addConstraint(Sketcher.Constraint("DistanceY", -1, 1, 84, 3, 1180.191548))
sketch1.addConstraint(Sketcher.Constraint("DistanceY", -1, 1, 86, 3, 1194.191548))
sketch1.addConstraint(Sketcher.Constraint("DistanceY", -1, 1, 3, 2, 1190.191548))
sketch1.addConstraint(Sketcher.Constraint("DistanceX", -1, 1, 84, 3, 2310.613927))
sketch1.addConstraint(Sketcher.Constraint("DistanceX", -1, 1, 85, 3, 2296.613927))
pad1 = body.newObject("PartDesign::Pad", "Pad")
pad1.Profile = sketch1
pad1.Length = 410

doc.recompute()
